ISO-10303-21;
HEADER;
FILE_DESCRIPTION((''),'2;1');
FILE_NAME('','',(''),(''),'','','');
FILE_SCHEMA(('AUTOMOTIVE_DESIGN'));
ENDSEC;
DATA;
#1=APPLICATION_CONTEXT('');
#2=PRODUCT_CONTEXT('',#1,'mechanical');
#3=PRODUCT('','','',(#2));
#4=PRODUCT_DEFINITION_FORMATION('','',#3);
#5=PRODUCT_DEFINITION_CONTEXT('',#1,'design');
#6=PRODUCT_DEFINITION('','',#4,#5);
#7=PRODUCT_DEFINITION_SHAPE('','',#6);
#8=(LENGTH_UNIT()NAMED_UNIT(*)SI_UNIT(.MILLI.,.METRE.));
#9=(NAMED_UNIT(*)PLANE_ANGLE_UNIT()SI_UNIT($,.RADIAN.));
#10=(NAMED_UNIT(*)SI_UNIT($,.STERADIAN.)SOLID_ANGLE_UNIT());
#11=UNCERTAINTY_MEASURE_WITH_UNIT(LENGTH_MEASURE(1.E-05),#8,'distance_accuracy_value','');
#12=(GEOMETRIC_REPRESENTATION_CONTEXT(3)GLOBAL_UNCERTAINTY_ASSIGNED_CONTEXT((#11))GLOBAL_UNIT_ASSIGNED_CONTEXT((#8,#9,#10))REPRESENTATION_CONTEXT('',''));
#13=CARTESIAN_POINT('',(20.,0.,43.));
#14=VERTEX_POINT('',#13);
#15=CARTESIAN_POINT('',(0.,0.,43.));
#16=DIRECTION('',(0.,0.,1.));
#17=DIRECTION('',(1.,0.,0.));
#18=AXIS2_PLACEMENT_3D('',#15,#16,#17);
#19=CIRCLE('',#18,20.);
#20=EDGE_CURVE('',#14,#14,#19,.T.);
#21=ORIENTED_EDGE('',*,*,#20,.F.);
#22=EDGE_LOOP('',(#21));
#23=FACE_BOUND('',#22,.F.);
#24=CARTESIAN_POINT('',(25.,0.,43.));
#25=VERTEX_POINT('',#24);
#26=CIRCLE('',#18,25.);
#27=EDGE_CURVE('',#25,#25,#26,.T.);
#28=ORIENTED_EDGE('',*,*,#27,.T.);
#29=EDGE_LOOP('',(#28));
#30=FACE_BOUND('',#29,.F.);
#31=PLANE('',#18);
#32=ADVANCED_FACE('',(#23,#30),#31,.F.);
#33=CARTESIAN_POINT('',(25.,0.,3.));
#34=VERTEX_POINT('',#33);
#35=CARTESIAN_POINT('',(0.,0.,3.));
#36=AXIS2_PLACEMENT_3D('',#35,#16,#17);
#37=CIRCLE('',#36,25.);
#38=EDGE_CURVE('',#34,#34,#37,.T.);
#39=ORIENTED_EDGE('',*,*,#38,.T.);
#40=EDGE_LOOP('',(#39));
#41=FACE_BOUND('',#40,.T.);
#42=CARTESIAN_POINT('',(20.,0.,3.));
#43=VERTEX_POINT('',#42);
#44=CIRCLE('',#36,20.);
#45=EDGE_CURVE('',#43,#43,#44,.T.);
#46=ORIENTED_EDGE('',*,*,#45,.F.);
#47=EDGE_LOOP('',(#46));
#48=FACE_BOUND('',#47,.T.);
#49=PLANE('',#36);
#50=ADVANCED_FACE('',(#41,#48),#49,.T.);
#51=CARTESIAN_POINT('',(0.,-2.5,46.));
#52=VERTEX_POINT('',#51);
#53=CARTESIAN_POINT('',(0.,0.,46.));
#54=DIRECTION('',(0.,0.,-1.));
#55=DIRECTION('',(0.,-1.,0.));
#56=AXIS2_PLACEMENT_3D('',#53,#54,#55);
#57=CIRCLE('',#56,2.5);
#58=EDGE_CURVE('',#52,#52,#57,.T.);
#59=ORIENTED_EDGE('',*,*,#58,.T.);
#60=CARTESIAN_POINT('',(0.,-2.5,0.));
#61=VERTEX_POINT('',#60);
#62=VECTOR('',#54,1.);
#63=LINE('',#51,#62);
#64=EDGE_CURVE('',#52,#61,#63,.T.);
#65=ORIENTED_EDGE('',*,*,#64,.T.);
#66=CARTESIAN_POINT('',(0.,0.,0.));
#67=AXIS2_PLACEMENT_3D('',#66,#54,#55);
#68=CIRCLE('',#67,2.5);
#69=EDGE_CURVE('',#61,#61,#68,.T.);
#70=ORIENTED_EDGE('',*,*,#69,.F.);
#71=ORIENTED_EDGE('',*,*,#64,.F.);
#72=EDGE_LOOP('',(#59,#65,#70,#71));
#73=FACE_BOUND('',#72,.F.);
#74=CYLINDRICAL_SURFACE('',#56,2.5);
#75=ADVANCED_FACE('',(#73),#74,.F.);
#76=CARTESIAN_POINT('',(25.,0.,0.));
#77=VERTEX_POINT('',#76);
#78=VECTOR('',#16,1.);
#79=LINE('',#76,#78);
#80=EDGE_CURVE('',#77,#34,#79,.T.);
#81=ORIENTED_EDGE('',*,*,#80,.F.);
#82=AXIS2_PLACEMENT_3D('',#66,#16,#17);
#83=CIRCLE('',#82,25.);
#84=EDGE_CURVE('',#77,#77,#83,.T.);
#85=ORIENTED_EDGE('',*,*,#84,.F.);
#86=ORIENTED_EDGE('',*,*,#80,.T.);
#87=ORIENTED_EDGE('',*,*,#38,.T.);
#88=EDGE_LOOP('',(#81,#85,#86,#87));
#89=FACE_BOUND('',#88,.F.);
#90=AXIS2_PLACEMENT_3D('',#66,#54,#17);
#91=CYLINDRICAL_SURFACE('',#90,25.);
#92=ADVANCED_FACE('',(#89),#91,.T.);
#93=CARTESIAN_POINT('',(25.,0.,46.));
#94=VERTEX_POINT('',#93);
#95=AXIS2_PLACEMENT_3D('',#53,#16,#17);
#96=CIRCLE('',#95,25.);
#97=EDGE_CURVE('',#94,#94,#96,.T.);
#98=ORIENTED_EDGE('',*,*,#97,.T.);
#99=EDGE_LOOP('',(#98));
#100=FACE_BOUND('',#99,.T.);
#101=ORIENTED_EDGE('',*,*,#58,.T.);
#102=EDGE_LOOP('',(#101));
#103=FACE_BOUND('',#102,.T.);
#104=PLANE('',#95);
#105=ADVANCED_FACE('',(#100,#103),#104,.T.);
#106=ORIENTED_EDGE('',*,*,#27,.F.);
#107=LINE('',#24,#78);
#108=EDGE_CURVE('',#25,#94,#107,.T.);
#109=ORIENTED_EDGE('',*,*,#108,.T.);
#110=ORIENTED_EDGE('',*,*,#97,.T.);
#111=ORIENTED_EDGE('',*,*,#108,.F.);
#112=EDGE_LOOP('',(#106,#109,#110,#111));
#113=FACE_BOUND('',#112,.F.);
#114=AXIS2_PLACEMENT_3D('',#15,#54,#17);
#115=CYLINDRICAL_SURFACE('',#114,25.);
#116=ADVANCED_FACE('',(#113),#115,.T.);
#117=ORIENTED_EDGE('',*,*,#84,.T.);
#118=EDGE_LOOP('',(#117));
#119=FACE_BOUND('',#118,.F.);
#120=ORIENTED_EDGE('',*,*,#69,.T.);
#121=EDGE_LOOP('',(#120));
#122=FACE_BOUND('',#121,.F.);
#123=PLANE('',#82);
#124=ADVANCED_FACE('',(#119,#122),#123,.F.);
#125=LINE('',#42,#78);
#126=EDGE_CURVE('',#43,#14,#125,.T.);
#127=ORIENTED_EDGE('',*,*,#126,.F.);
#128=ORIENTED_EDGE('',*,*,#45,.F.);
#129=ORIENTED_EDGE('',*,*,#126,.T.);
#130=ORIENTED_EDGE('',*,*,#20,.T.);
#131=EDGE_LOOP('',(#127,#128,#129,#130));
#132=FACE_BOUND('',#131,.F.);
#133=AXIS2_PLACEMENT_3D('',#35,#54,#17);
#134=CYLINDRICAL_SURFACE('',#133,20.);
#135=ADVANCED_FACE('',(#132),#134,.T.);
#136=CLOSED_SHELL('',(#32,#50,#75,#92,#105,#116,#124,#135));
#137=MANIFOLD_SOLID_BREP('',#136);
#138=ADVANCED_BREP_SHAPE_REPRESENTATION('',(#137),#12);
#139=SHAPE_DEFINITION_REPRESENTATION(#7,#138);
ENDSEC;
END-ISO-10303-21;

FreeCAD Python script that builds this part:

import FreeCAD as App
import Part
import Sketcher

V = App.Vector
Q = App.Units.Quantity

doc = App.newDocument("Part")
params = doc.addObject("Spreadsheet::Sheet", "Params")
for row, (alias, value) in enumerate([
    ("sketch1_diameter", "50 mm"),
    ("pad1_length", "3 mm"),
    ("sketch2_diameter", "40 mm"),
    ("pad2_length", "40 mm"),
    ("sketch3_diameter", "50 mm"),
    ("pad3_length", "3 mm"),
    ("sketch4_diameter", "5 mm"),
    ("hole_diameter", "5 mm"),
    ("hole_depth", "46 mm"),
], start=1):
    params.set(f"A{row}", alias)
    params.set(f"B{row}", "=" + value)
    params.setAlias(f"B{row}", alias)

body = doc.addObject("PartDesign::Body", "Body")

# Sketch on XY plane
sketch1 = body.newObject("Sketcher::SketchObject", "Sketch")
sketch1.AttachmentSupport = (doc.getObject("XY_Plane"), [""])
sketch1.MapMode = "FlatFace"
sketch1.addGeometry(Part.Circle(V(0, 0, 0), V(0, 0, 1), 25), False)
sketch1.addConstraint(Sketcher.Constraint("Coincident", 0, 3, -1, 1))
sketch1.addConstraint(Sketcher.Constraint("Diameter", 0, Q("50 mm")))
sketch1.setExpression("Constraints[1]", "Params.sketch1_diameter")
pad1 = body.newObject("PartDesign::Pad", "Pad")
pad1.Profile = sketch1
pad1.setExpression("Length", "Params.pad1_length")

# Sketch on XY plane
sketch2 = body.newObject("Sketcher::SketchObject", "Sketch001")
sketch2.AttachmentSupport = (doc.getObject("XY_Plane"), [""])
sketch2.MapMode = "FlatFace"
sketch2.AttachmentOffset = App.Placement(V(0, 0, 3), App.Rotation())
sketch2.addGeometry(Part.Circle(V(0, 0, 0), V(0, 0, 1), 20), False)
sketch2.addConstraint(Sketcher.Constraint("Coincident", 0, 3, -1, 1))
sketch2.addConstraint(Sketcher.Constraint("Diameter", 0, Q("40 mm")))
sketch2.setExpression("Constraints[1]", "Params.sketch2_diameter")
pad2 = body.newObject("PartDesign::Pad", "Pad001")
pad2.Profile = sketch2
pad2.setExpression("Length", "Params.pad2_length")

# Sketch on XY plane
sketch3 = body.newObject("Sketcher::SketchObject", "Sketch002")
sketch3.AttachmentSupport = (doc.getObject("XY_Plane"), [""])
sketch3.MapMode = "FlatFace"
sketch3.AttachmentOffset = App.Placement(V(0, 0, 43), App.Rotation())
sketch3.addGeometry(Part.Circle(V(0, 0, 0), V(0, 0, 1), 25), False)
sketch3.addConstraint(Sketcher.Constraint("Coincident", 0, 3, -1, 1))
sketch3.addConstraint(Sketcher.Constraint("Diameter", 0, Q("50 mm")))
sketch3.setExpression("Constraints[1]", "Params.sketch3_diameter")
pad3 = body.newObject("PartDesign::Pad", "Pad002")
pad3.Profile = sketch3
pad3.setExpression("Length", "Params.pad3_length")

# Sketch on XY plane
sketch4 = body.newObject("Sketcher::SketchObject", "Sketch003")
sketch4.AttachmentSupport = (doc.getObject("XY_Plane"), [""])
sketch4.MapMode = "FlatFace"
sketch4.AttachmentOffset = App.Placement(V(0, 0, 46), App.Rotation())
sketch4.addGeometry(Part.Circle(V(0, 0, 0), V(0, 0, 1), 2.5), False)
sketch4.addConstraint(Sketcher.Constraint("Coincident", 0, 3, -1, 1))
sketch4.addConstraint(Sketcher.Constraint("Diameter", 0, Q("5 mm")))
sketch4.setExpression("Constraints[1]", "Params.sketch4_diameter")
doc.recompute()
hole = body.newObject("PartDesign::Hole", "Hole")
hole.Profile = sketch4
hole.ThreadType = "None"
hole.setExpression("Diameter", "Params.hole_diameter")
hole.DepthType = "Dimension"
hole.setExpression("Depth", "Params.hole_depth")
hole.DrillPoint = "Flat"

doc.recompute()
